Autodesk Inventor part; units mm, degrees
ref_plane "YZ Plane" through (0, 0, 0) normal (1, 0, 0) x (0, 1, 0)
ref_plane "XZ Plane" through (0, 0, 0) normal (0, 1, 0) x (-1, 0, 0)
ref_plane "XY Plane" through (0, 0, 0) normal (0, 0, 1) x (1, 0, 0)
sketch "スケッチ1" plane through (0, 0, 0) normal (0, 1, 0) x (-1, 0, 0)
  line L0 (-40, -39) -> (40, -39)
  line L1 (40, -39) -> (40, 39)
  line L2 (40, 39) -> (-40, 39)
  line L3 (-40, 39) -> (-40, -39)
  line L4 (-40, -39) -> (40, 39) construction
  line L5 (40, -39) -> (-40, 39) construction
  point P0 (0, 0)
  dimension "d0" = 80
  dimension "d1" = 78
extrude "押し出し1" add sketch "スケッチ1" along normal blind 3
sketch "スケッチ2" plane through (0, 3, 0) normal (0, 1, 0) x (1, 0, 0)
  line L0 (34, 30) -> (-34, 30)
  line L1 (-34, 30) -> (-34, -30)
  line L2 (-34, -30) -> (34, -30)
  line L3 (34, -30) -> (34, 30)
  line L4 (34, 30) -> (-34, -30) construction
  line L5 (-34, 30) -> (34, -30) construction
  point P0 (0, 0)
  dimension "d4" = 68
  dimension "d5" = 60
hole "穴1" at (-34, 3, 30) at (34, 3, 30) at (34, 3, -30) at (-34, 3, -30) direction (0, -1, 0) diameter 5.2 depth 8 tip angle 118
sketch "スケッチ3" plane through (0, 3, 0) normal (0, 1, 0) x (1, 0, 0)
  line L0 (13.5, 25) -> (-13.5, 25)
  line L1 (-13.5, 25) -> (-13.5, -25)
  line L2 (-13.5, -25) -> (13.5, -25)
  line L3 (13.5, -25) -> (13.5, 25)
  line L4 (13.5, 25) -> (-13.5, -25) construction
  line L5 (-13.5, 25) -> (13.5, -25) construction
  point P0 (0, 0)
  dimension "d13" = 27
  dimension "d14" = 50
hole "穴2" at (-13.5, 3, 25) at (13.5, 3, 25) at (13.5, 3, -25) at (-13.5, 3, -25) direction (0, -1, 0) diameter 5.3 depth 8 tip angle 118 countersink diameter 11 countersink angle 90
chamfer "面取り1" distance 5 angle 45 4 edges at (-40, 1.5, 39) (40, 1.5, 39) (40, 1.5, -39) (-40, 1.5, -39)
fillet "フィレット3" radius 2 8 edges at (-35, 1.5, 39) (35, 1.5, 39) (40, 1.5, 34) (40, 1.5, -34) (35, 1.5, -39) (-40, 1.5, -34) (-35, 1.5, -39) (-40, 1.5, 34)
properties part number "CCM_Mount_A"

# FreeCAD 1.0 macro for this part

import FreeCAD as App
import Part
import Sketcher
Q = App.Units.Quantity


def edges_at(feature, points):
    """Names of the edges that pass closest to the given points."""
    edges = feature.Shape.Edges
    near = lambda p: min(range(len(edges)), key=lambda i: edges[i].distToShape(Part.Vertex(*p))[0])
    return sorted({f"Edge{near(p) + 1}" for p in points})


def add_polygon(sketch, points):
    """Adds a closed chain of lines whose ends are joined by coincident constraints."""
    first, n = sketch.GeometryCount, len(points)
    for a, b in zip(points, points[1:] + points[:1]):
        sketch.addGeometry(Part.LineSegment(App.Vector(*a, 0), App.Vector(*b, 0)), False)
    for i in range(n):
        sketch.addConstraint(Sketcher.Constraint("Coincident", first + i, 2, first + (i + 1) % n, 1))

doc = App.newDocument("Part")
params = doc.addObject("Spreadsheet::Sheet", "Params")
for row, (alias, value) in enumerate([
    ("sketch1_width", "80 mm"),
    ("sketch1_height", "78 mm"),
    ("pad1_length", "3 mm"),
    ("sketch2_diameter", "5.2 mm"),
    ("hole_diameter", "5.2 mm"),
    ("hole_depth", "8 mm"),
    ("sketch3_diameter", "5.3 mm"),
    ("hole2_diameter", "5.3 mm"),
    ("hole2_depth", "8 mm"),
    ("hole2_csink_diameter", "11 mm"),
    ("chamfer_size", "5 mm"),
    ("fillet_radius", "2 mm"),
], start=1):
    params.set(f"A{row}", alias)
    params.set(f"B{row}", "=" + value)
    params.setAlias(f"B{row}", alias)

body = doc.addObject("PartDesign::Body", "Body")

# Sketch on XZ plane
sketch1 = doc.addObject("Sketcher::SketchObject", "Sketch")
body.addObject(sketch1)
sketch1.AttachmentSupport = (doc.XZ_Plane, [""])
sketch1.MapMode = "FlatFace"
add_polygon(sketch1, [(40, 39), (40, -39), (-40, -39), (-40, 39)])  # lines 0-3
sketch1.addConstraint(Sketcher.Constraint("Vertical", 0))
sketch1.addConstraint(Sketcher.Constraint("Horizontal", 1))
sketch1.addConstraint(Sketcher.Constraint("Vertical", 2))
sketch1.addConstraint(Sketcher.Constraint("Horizontal", 3))
sketch1.addConstraint(Sketcher.Constraint("Symmetric", 0, 2, 2, 2, -1, 1))
sketch1.addConstraint(Sketcher.Constraint("DistanceX", 1, 2, 1, 1, Q("80 mm")))
sketch1.addConstraint(Sketcher.Constraint("DistanceY", 0, 2, 0, 1, Q("78 mm")))
sketch1.setExpression("Constraints[9]", "Params.sketch1_width")
sketch1.setExpression("Constraints[10]", "Params.sketch1_height")
pad1 = doc.addObject("PartDesign::Pad", "Pad")
body.addObject(pad1)
pad1.Profile = sketch1
pad1.setExpression("Length", "Params.pad1_length")
pad1.Reversed = True

# Sketch on XZ plane
sketch2 = doc.addObject("Sketcher::SketchObject", "Sketch001")
body.addObject(sketch2)
sketch2.AttachmentSupport = (doc.XZ_Plane, [""])
sketch2.MapMode = "FlatFace"
sketch2.AttachmentOffset = App.Placement(App.Vector(0, 0, -3), App.Rotation())
sketch2.addGeometry(Part.Circle(App.Vector(-34, 30, 0), App.Vector(0, 0, 1), 2.6), False)
sketch2.addGeometry(Part.Circle(App.Vector(34, 30, 0), App.Vector(0, 0, 1), 2.6), False)
sketch2.addGeometry(Part.Circle(App.Vector(34, -30, 0), App.Vector(0, 0, 1), 2.6), False)
sketch2.addGeometry(Part.Circle(App.Vector(-34, -30, 0), App.Vector(0, 0, 1), 2.6), False)
sketch2.addConstraint(Sketcher.Constraint("Equal", 0, 1))
sketch2.addConstraint(Sketcher.Constraint("Equal", 1, 2))
sketch2.addConstraint(Sketcher.Constraint("Equal", 2, 3))
sketch2.addConstraint(Sketcher.Constraint("Symmetric", 0, 3, 2, 3, -1, 1))
sketch2.addConstraint(Sketcher.Constraint("Symmetric", 1, 3, 3, 3, -1, 1))
sketch2.addConstraint(Sketcher.Constraint("Symmetric", 0, 3, 1, 3, -2))
sketch2.addConstraint(Sketcher.Constraint("Diameter", 0, Q("5.2 mm")))
sketch2.addConstraint(Sketcher.Constraint("DistanceX", 0, 3, -1, 1, Q("34 mm")))
sketch2.addConstraint(Sketcher.Constraint("DistanceY", -1, 1, 0, 3, Q("30 mm")))
sketch2.setExpression("Constraints[6]", "Params.sketch2_diameter")
doc.recompute()
hole = doc.addObject("PartDesign::Hole", "Hole")
body.addObject(hole)
hole.Profile = sketch2
hole.ThreadType = "None"
hole.setExpression("Diameter", "Params.hole_diameter")
hole.DepthType = "Dimension"
hole.setExpression("Depth", "Params.hole_depth")
hole.DrillPoint = "Angled"
hole.DrillPointAngle = 118
hole.Reversed = True

# Sketch on XZ plane
sketch3 = doc.addObject("Sketcher::SketchObject", "Sketch002")
body.addObject(sketch3)
sketch3.AttachmentSupport = (doc.XZ_Plane, [""])
sketch3.MapMode = "FlatFace"
sketch3.AttachmentOffset = App.Placement(App.Vector(0, 0, -3), App.Rotation())
sketch3.addGeometry(Part.Circle(App.Vector(-13.5, 25, 0), App.Vector(0, 0, 1), 2.6), False)
sketch3.addGeometry(Part.Circle(App.Vector(13.5, 25, 0), App.Vector(0, 0, 1), 2.6), False)
sketch3.addGeometry(Part.Circle(App.Vector(13.5, -25, 0), App.Vector(0, 0, 1), 2.6), False)
sketch3.addGeometry(Part.Circle(App.Vector(-13.5, -25, 0), App.Vector(0, 0, 1), 2.6), False)
sketch3.addConstraint(Sketcher.Constraint("Equal", 0, 1))
sketch3.addConstraint(Sketcher.Constraint("Equal", 1, 2))
sketch3.addConstraint(Sketcher.Constraint("Equal", 2, 3))
sketch3.addConstraint(Sketcher.Constraint("Symmetric", 0, 3, 2, 3, -1, 1))
sketch3.addConstraint(Sketcher.Constraint("Symmetric", 1, 3, 3, 3, -1, 1))
sketch3.addConstraint(Sketcher.Constraint("Symmetric", 0, 3, 1, 3, -2))
sketch3.addConstraint(Sketcher.Constraint("Diameter", 0, Q("5.3 mm")))
sketch3.addConstraint(Sketcher.Constraint("DistanceY", -1, 1, 0, 3, Q("25 mm")))
sketch3.addConstraint(Sketcher.Constraint("DistanceX", 0, 3, 1, 3, Q("27 mm")))
sketch3.setExpression("Constraints[6]", "Params.sketch3_diameter")
doc.recompute()
hole2 = doc.addObject("PartDesign::Hole", "Hole001")
body.addObject(hole2)
hole2.Profile = sketch3
hole2.ThreadType = "None"
hole2.setExpression("Diameter", "Params.hole2_diameter")
hole2.DepthType = "Dimension"
hole2.setExpression("Depth", "Params.hole2_depth")
hole2.DrillPoint = "Angled"
hole2.DrillPointAngle = 118
hole2.HoleCutType = "Countersink"
hole2.setExpression("HoleCutDiameter", "Params.hole2_csink_diameter")
hole2.HoleCutCountersinkAngle = 90
hole2.Reversed = True
doc.recompute()

chamfer = doc.addObject("PartDesign::Chamfer", "Chamfer")
body.addObject(chamfer)
chamfer.Base = (hole2, edges_at(hole2, [
    (-40, 1.5, 39),
    (40, 1.5, 39),
    (40, 1.5, -39),
    (-40, 1.5, -39),
]))
chamfer.setExpression("Size", "Params.chamfer_size")
doc.recompute()

fillet = doc.addObject("PartDesign::Fillet", "Fillet")
body.addObject(fillet)
fillet.Base = (chamfer, edges_at(chamfer, [
    (-35, 1.5, 39),
    (35, 1.5, 39),
    (40, 1.5, 34),
    (40, 1.5, -34),
    (35, 1.5, -39),
    (-40, 1.5, -34),
    (-35, 1.5, -39),
    (-40, 1.5, 34),
]))
fillet.setExpression("Radius", "Params.fillet_radius")

doc.recompute()
